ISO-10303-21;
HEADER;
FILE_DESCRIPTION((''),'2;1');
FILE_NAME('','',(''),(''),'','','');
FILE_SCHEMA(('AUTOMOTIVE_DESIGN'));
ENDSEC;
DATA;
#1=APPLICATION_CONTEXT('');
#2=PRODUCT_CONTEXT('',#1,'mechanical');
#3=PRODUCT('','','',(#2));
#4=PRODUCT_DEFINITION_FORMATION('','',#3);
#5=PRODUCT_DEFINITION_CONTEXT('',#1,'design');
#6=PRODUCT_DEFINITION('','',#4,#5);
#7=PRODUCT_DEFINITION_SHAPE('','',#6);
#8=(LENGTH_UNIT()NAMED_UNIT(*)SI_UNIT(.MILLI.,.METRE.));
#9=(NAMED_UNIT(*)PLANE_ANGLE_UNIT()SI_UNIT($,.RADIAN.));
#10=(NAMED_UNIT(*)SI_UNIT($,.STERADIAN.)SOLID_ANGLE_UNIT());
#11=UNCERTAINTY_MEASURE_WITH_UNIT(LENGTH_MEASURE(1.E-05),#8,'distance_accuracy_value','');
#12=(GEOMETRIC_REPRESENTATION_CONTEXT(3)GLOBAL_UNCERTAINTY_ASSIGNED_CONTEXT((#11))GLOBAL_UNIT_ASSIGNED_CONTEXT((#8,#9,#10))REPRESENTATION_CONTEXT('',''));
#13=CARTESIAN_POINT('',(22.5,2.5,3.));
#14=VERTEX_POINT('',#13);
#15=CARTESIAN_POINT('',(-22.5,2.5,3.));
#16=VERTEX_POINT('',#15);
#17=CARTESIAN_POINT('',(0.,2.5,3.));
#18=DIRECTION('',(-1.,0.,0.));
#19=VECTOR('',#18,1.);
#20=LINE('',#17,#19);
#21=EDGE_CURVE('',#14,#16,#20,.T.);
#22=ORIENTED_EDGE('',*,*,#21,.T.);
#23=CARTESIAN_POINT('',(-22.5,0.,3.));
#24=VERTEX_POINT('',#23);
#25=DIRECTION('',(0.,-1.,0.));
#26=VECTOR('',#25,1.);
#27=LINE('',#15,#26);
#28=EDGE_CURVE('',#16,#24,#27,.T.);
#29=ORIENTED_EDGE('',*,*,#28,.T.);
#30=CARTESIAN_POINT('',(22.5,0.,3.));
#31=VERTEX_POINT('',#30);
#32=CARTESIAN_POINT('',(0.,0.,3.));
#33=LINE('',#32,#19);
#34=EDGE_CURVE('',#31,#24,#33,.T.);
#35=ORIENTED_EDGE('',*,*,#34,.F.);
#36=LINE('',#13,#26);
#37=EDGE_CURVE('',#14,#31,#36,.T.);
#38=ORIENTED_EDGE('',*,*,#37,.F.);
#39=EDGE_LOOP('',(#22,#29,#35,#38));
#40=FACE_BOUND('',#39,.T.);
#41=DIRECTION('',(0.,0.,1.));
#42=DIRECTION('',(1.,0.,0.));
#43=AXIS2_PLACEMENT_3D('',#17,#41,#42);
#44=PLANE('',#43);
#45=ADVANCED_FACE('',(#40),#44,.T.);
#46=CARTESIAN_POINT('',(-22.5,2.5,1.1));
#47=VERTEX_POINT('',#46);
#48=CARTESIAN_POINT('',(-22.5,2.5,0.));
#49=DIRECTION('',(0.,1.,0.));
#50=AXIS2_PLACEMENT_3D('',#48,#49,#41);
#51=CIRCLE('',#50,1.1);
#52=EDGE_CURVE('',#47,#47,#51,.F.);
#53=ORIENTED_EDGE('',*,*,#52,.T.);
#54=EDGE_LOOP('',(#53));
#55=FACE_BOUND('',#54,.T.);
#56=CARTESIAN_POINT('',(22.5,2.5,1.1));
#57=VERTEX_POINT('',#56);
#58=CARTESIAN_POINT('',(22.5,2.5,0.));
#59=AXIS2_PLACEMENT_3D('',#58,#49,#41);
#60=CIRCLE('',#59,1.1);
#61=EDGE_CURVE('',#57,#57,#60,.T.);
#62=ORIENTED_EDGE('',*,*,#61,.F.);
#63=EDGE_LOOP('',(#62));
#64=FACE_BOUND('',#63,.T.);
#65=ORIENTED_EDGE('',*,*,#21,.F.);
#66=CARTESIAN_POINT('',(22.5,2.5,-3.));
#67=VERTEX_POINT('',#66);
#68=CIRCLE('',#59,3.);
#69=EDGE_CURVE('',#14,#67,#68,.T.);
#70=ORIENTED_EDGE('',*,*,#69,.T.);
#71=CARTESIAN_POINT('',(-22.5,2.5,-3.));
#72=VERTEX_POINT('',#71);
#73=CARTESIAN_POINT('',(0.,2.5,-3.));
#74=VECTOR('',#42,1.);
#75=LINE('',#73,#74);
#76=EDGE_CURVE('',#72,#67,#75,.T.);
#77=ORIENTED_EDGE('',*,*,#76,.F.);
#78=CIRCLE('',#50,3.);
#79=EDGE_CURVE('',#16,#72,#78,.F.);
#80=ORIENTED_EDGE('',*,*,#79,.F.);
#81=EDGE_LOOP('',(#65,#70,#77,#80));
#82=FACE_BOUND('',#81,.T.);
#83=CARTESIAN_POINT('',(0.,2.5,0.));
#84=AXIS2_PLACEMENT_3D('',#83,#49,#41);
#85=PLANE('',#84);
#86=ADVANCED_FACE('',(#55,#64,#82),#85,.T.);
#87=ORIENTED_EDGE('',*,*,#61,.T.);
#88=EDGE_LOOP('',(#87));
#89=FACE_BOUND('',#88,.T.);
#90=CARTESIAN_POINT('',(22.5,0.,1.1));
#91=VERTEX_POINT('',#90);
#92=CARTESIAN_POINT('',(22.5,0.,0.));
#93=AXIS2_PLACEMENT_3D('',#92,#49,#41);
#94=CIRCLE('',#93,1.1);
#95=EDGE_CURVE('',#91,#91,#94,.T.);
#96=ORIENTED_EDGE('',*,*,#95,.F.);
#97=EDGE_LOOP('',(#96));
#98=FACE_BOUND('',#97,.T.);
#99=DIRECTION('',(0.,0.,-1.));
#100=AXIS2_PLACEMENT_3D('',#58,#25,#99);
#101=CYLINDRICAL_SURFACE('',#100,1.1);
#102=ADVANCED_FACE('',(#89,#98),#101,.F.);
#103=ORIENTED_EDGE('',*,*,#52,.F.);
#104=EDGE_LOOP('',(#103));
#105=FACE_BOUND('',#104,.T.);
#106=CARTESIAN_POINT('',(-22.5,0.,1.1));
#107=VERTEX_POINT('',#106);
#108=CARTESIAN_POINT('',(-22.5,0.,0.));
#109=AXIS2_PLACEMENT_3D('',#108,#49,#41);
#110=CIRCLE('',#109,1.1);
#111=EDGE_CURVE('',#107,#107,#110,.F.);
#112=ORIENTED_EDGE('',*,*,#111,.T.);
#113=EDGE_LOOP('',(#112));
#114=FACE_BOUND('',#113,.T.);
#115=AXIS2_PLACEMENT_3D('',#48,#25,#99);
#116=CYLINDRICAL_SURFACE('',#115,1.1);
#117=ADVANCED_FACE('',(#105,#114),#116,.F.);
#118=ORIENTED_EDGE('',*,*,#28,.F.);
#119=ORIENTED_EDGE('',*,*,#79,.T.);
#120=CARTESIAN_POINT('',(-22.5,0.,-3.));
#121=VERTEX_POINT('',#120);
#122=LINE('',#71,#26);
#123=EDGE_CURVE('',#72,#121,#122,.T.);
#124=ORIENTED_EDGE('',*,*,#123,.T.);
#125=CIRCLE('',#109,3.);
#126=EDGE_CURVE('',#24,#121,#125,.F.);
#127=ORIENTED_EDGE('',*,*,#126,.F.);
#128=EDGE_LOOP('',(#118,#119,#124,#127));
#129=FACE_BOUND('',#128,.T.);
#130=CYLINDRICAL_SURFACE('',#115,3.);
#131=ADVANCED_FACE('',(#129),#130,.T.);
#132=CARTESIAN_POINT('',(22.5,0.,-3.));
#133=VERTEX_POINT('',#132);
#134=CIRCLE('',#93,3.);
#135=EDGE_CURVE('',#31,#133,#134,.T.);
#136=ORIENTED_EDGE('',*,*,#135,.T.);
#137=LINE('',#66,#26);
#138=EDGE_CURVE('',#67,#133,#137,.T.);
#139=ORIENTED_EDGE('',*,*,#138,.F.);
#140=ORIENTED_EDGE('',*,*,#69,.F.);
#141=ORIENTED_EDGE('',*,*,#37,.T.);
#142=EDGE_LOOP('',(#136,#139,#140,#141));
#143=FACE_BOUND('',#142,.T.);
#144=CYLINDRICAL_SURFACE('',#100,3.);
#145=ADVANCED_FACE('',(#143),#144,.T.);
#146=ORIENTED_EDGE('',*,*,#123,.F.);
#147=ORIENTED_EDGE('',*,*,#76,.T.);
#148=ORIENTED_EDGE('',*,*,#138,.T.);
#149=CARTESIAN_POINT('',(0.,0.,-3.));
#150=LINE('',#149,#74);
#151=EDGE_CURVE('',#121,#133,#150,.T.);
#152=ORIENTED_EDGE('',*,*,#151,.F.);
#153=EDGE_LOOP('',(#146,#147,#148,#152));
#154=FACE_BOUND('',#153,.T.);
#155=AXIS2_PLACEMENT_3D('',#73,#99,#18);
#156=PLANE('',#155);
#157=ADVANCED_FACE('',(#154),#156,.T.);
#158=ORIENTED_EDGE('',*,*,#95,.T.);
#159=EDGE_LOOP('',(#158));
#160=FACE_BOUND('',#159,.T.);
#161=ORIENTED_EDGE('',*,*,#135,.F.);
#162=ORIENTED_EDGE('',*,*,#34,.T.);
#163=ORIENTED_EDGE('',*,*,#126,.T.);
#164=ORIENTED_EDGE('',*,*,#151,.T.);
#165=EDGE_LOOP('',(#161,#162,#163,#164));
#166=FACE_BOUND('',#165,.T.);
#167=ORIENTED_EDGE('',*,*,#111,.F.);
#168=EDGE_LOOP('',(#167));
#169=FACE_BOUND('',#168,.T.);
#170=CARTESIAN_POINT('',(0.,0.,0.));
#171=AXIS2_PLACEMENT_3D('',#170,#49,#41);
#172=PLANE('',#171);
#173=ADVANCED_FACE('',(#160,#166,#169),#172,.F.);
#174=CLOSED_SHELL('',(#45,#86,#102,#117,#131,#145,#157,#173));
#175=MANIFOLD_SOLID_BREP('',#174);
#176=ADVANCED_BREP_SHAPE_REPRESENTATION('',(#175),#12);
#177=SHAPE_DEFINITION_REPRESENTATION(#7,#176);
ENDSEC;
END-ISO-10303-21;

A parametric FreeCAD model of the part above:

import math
import FreeCAD as App
import Part
import Sketcher

V = App.Vector
Q = App.Units.Quantity

doc = App.newDocument("Part")
body = doc.addObject("PartDesign::Body", "Body")

# Sketch on XZ plane
sketch1 = body.newObject("Sketcher::SketchObject", "Sketch")
sketch1.AttachmentSupport = (doc.getObject("XZ_Plane"), [""])
sketch1.MapMode = "FlatFace"
sketch1.addGeometry([
    Part.ArcOfCircle(Part.Circle(V(22.5, 0, 0), V(0, 0, 1), 3), math.radians(-90), math.radians(90)),  # 0
    Part.LineSegment(V(22.5, -3, 0), V(-22.5, -3, 0)),  # 1
    Part.ArcOfCircle(Part.Circle(V(-22.5, 0, 0), V(0, 0, 1), 3), math.radians(90), math.radians(270)),  # 2
    Part.LineSegment(V(-22.5, 3, 0), V(22.5, 3, 0)),  # 3
    Part.Circle(V(22.5, 0, 0), V(0, 0, 1), 1.1),  # 4
    Part.Circle(V(-22.5, 0, 0), V(0, 0, 1), 1.1),  # 5
], False)
sketch1.addConstraint([
    Sketcher.Constraint("Tangent", 0, 1, 1, 1),
    Sketcher.Constraint("Tangent", 1, 2, 2, 2),
    Sketcher.Constraint("Tangent", 2, 1, 3, 1),
    Sketcher.Constraint("Tangent", 3, 2, 0, 2),
    Sketcher.Constraint("Horizontal", 1),
    Sketcher.Constraint("Horizontal", 3),
    Sketcher.Constraint("Coincident", 4, 3, 0, 3),
    Sketcher.Constraint("Coincident", 5, 3, 2, 3),
    Sketcher.Constraint("Equal", 4, 5),
    Sketcher.Constraint("Symmetric", 0, 3, 2, 3, -1, 1),
    Sketcher.Constraint("Radius", 0, Q("3 mm")),
    Sketcher.Constraint("Diameter", 4, Q("2.2 mm")),
    Sketcher.Constraint("DistanceX", 1, 2, 1, 1, Q("45 mm")),
])
pad1 = body.newObject("PartDesign::Pad", "Pad")
pad1.Profile = sketch1
pad1.Length = 2.5
pad1.Reversed = True

doc.recompute()
